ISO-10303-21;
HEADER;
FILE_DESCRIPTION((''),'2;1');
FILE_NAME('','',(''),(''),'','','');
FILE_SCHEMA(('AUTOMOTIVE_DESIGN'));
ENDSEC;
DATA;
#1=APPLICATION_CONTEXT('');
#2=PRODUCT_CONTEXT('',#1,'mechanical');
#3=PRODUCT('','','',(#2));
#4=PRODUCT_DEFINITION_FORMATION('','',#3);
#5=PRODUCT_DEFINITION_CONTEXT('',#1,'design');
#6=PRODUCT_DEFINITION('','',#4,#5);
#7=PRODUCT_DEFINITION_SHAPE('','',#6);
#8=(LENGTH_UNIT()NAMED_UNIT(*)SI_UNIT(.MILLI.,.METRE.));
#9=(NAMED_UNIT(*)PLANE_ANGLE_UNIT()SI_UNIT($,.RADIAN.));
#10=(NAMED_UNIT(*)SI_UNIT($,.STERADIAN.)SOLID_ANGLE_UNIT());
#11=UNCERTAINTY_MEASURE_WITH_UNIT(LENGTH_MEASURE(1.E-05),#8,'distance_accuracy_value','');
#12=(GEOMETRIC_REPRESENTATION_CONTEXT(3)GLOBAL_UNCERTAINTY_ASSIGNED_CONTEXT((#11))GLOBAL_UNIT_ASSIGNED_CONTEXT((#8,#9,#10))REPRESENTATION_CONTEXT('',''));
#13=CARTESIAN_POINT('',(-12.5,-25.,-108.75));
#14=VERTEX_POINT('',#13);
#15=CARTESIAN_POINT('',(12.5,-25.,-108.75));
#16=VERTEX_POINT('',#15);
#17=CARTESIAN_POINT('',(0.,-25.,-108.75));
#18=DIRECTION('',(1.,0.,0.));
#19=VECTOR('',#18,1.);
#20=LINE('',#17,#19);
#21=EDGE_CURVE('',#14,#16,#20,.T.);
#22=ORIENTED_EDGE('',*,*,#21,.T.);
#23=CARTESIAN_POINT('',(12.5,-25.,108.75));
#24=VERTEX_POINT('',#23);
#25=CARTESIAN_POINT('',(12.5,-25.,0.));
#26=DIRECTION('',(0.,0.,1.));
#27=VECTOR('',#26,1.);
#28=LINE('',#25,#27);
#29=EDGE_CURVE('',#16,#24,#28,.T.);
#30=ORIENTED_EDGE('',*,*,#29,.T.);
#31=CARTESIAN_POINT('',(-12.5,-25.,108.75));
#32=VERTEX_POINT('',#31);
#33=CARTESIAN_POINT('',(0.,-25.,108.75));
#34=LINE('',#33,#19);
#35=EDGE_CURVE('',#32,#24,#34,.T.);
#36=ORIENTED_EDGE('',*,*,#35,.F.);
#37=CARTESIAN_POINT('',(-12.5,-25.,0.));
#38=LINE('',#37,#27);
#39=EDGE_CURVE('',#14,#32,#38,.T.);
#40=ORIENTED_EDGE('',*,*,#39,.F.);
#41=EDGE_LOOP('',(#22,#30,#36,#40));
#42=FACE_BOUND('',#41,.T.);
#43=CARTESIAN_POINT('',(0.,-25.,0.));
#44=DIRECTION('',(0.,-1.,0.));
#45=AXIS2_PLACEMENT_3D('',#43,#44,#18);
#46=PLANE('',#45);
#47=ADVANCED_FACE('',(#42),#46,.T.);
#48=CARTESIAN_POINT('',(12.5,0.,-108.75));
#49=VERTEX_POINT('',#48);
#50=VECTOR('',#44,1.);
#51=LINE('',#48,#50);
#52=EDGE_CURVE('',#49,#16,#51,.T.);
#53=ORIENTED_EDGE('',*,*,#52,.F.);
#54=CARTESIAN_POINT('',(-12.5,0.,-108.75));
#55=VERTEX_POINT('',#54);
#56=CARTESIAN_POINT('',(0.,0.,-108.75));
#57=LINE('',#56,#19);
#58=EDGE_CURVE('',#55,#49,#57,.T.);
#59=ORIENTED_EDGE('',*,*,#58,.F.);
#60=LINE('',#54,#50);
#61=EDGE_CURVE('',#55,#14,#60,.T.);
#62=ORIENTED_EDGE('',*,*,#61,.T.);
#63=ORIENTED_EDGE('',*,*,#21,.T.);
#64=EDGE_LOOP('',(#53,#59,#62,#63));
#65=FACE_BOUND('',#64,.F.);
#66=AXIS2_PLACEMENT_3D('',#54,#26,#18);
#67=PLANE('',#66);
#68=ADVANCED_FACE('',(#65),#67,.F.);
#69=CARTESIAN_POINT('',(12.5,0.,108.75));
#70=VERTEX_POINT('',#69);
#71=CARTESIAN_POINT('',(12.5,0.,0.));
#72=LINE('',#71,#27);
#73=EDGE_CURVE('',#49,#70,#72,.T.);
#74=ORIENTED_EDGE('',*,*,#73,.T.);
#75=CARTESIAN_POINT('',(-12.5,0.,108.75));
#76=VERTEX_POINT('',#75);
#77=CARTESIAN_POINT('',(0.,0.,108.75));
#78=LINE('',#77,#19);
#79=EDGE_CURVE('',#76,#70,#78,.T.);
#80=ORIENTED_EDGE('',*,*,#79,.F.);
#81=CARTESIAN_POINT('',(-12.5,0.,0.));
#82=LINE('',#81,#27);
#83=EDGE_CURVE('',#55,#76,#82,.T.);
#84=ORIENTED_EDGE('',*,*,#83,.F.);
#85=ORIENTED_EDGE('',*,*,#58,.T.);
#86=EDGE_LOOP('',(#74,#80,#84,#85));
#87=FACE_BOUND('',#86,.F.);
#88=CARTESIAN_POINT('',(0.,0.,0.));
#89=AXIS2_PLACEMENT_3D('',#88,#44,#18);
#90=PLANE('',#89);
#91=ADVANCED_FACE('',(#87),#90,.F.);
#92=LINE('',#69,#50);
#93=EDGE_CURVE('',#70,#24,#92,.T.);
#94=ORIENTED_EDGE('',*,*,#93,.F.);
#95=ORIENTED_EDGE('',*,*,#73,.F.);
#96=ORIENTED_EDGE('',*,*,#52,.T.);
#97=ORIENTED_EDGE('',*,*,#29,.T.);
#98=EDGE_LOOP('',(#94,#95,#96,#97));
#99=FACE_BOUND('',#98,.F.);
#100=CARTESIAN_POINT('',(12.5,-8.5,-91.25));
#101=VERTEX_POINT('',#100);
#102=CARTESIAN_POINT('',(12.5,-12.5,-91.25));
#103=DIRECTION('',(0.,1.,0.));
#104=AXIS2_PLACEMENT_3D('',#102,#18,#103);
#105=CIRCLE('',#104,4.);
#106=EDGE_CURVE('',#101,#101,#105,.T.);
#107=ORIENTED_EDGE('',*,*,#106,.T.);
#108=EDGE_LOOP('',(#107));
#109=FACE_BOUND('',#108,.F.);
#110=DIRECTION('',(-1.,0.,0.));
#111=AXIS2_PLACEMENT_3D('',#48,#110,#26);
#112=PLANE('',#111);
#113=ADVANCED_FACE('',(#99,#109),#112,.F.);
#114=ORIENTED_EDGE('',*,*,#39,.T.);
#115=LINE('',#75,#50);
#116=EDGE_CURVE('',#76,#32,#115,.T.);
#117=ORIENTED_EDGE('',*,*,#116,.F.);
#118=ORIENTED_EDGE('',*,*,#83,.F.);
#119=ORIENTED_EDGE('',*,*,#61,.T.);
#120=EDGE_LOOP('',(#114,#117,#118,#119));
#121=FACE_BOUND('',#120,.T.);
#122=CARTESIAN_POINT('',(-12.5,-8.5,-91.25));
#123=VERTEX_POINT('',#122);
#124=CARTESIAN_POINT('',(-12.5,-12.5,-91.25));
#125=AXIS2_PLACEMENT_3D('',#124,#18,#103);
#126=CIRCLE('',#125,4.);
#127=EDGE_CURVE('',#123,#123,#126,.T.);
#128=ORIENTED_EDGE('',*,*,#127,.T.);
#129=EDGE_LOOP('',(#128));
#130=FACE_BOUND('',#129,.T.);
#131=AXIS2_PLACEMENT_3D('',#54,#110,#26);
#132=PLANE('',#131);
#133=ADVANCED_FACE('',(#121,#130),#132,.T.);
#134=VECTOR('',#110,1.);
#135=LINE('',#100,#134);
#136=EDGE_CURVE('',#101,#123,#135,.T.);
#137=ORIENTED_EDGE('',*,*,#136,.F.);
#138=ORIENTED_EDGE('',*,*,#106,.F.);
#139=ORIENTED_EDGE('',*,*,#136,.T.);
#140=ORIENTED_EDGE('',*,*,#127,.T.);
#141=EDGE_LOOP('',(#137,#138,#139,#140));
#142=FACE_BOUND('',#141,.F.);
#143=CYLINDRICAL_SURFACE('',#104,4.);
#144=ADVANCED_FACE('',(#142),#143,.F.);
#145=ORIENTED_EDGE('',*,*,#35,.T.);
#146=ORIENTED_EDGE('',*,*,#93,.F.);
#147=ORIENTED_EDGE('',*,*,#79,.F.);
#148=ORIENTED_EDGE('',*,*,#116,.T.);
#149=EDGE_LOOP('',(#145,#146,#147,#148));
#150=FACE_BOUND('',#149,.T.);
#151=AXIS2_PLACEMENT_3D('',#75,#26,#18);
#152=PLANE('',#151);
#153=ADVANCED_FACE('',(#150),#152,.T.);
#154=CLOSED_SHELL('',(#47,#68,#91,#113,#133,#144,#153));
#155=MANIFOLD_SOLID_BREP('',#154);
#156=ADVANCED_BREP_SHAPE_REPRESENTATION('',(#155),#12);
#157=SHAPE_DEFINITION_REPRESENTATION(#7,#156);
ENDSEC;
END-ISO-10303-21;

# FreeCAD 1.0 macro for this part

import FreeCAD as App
import Part
import Sketcher
from FreeCAD import Vector


def add_polygon(sketch, points):
    """Adds a closed chain of lines whose ends are joined by coincident constraints."""
    first, n = sketch.GeometryCount, len(points)
    for a, b in zip(points, points[1:] + points[:1]):
        sketch.addGeometry(Part.LineSegment(App.Vector(*a, 0), App.Vector(*b, 0)), False)
    for i in range(n):
        sketch.addConstraint(Sketcher.Constraint("Coincident", first + i, 2, first + (i + 1) % n, 1))

doc = App.newDocument("Part")
params = doc.addObject("Spreadsheet::Sheet", "Params")
for row, (alias, value) in enumerate([
    ("sketch1_width", "25 mm"),
    ("sketch1_height", "217.5 mm"),
    ("pad1_length", "25 mm"),
    ("sketch2_diameter", "8 mm"),
    ("pocket1_length", "25 mm"),
], start=1):
    params.set(f"A{row}", alias)
    params.set(f"B{row}", "=" + value)
    params.setAlias(f"B{row}", alias)

body = doc.addObject("PartDesign::Body", "Body")

sketch1 = body.newObject("Sketcher::SketchObject", "Sketch")
sketch1.AttachmentSupport = (doc.getObject("XZ_Plane"), [""])
sketch1.MapMode = "FlatFace"
add_polygon(sketch1, [(-12.5, 108.75), (-12.5, -108.75), (12.5, -108.75), (12.5, 108.75)])
sketch1.addConstraint([
    Sketcher.Constraint("Vertical", 0),
    Sketcher.Constraint("Horizontal", 1),
    Sketcher.Constraint("Vertical", 2),
    Sketcher.Constraint("Horizontal", 3),
    Sketcher.Constraint("Symmetric", 0, 2, 2, 2, -1, 1),
    Sketcher.Constraint("DistanceX", 1, 1, 1, 2, 25.0),
    Sketcher.Constraint("DistanceY", 0, 2, 0, 1, 217.5),
])
sketch1.setExpression("Constraints[9]", "Params.sketch1_width")
sketch1.setExpression("Constraints[10]", "Params.sketch1_height")
pad1 = body.newObject("PartDesign::Pad", "Pad")
pad1.Profile = sketch1
pad1.setExpression("Length", "Params.pad1_length")

sketch2 = body.newObject("Sketcher::SketchObject", "Sketch001")
sketch2.AttachmentSupport = (doc.getObject("YZ_Plane"), [""])
sketch2.MapMode = "FlatFace"
sketch2.AttachmentOffset = App.Placement(Vector(0, 0, 12.5), App.Rotation())
sketch2.addGeometry(Part.Circle(Vector(-12.5, -91.25, 0), Vector(0, 0, 1), 4), False)
sketch2.addConstraint([
    Sketcher.Constraint("Diameter", 0, 8.0),
    Sketcher.Constraint("DistanceX", 0, 3, -1, 1, 12.5),
    Sketcher.Constraint("DistanceY", 0, 3, -1, 1, 91.25),
])
sketch2.setExpression("Constraints[0]", "Params.sketch2_diameter")
pocket1 = body.newObject("PartDesign::Pocket", "Pocket")
pocket1.Profile = sketch2
pocket1.setExpression("Length", "Params.pocket1_length")

doc.recompute()
